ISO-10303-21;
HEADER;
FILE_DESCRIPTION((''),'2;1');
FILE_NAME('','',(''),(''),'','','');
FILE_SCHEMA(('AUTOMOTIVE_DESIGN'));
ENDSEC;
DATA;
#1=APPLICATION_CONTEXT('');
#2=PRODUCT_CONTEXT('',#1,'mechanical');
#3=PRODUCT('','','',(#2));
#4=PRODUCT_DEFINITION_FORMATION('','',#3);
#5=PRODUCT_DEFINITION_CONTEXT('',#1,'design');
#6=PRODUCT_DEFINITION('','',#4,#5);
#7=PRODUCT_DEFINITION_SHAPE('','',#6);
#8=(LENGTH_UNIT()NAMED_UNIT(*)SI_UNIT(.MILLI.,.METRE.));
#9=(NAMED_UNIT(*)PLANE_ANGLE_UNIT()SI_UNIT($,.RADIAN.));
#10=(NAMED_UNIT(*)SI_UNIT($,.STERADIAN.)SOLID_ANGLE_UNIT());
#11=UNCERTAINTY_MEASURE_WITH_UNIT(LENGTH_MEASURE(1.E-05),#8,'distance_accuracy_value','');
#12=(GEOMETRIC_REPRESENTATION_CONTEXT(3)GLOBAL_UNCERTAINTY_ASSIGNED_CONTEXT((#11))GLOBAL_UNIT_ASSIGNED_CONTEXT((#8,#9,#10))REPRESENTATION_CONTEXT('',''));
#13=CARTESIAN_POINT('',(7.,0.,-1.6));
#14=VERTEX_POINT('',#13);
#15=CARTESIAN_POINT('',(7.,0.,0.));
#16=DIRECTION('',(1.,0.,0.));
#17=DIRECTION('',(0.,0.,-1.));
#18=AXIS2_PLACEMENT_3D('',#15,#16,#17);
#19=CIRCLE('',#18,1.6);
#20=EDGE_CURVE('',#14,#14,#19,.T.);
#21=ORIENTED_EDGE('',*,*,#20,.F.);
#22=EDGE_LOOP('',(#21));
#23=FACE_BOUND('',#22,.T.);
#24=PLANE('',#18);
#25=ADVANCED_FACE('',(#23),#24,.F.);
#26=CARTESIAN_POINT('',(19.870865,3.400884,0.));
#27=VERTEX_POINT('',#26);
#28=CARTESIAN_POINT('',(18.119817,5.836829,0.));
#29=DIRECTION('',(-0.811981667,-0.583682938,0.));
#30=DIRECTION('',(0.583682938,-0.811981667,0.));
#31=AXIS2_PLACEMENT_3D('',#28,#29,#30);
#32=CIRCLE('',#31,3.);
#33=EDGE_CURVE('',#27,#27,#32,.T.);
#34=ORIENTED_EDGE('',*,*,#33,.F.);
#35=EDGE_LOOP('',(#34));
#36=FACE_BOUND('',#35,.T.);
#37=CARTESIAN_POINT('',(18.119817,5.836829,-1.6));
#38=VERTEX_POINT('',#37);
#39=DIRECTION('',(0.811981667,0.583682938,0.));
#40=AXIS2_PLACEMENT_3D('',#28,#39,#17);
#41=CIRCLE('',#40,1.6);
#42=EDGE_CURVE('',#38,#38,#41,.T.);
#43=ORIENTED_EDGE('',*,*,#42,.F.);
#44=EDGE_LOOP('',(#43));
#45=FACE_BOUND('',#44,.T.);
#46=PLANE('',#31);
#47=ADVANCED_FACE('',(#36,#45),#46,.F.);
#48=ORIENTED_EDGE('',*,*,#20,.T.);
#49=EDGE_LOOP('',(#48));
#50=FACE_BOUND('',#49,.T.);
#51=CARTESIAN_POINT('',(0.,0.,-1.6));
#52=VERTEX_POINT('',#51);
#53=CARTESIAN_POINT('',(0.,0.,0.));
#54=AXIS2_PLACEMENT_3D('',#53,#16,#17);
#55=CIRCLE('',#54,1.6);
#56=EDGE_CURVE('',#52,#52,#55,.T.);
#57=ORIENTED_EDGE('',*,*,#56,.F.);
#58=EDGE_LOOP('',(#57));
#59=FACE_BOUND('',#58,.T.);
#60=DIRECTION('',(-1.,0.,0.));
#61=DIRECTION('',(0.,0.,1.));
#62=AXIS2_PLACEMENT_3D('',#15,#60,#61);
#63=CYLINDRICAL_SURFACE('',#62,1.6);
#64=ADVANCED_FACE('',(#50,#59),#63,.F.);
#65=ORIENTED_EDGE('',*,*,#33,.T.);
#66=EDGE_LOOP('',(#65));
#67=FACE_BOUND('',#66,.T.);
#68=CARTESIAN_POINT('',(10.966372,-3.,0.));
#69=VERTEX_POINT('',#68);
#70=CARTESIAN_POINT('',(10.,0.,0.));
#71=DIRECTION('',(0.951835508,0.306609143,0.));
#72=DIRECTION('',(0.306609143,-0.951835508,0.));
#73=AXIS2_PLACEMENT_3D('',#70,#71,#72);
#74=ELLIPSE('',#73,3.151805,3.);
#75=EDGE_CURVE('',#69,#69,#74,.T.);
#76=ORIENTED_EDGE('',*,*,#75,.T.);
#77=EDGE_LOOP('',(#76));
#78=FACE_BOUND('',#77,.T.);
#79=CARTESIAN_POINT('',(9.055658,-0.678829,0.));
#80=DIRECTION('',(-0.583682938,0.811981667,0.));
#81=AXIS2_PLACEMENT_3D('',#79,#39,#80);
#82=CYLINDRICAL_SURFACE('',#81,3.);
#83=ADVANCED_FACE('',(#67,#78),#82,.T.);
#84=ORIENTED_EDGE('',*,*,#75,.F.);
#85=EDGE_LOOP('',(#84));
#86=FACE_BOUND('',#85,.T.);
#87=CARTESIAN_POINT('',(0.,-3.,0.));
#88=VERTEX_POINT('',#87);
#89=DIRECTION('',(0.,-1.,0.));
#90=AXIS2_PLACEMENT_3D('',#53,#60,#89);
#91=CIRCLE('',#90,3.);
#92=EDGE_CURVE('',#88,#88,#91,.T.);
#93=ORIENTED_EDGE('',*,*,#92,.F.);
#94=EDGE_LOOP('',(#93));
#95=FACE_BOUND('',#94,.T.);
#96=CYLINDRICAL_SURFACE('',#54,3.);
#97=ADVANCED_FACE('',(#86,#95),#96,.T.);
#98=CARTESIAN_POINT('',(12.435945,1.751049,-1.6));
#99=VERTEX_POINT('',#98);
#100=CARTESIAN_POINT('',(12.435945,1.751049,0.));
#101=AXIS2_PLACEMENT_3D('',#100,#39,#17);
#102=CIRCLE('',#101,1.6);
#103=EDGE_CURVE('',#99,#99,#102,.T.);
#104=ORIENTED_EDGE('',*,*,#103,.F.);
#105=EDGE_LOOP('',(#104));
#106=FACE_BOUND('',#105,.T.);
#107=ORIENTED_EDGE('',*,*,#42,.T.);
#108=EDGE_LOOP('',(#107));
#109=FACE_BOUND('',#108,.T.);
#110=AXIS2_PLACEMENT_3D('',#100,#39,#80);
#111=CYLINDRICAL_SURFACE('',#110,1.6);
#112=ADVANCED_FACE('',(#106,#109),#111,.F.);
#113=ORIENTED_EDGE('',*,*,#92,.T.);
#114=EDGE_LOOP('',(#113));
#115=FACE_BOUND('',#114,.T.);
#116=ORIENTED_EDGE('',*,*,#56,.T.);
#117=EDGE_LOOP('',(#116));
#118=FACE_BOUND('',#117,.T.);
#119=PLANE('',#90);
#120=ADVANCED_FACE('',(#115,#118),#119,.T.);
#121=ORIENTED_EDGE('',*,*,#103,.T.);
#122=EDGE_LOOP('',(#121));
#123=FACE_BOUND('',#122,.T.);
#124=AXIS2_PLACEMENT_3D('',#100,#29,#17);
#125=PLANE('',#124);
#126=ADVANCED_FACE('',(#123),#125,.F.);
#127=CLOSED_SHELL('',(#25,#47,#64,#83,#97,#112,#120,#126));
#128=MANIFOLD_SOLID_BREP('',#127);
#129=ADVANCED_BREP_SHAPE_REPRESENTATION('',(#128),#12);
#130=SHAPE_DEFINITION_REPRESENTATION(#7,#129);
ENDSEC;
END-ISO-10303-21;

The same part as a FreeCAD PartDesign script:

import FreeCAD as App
import Part
import Sketcher

V = App.Vector
Q = App.Units.Quantity

doc = App.newDocument("Part")
params = doc.addObject("Spreadsheet::Sheet", "Params")
for row, (alias, value) in enumerate([
    ("sketch1_diameter", "6 mm"),
    ("sketch2_width", "10 mm"),
    ("sketch2_length", "10 mm"),
    ("sketch3_diameter", "3.2 mm"),
    ("pocket1_length", "7 mm"),
], start=1):
    params.set(f"A{row}", alias)
    params.set(f"B{row}", "=" + value)
    params.setAlias(f"B{row}", alias)

body = doc.addObject("PartDesign::Body", "Body")

sketch1 = body.newObject("Sketcher::SketchObject", "Sketch")
sketch1.AttachmentSupport = (doc.getObject("YZ_Plane"), [""])
sketch1.MapMode = "FlatFace"
sketch1.addGeometry(Part.Circle(V(0, 0, 0), V(0, 0, 1), 3), False)
sketch1.addConstraint([
    Sketcher.Constraint("Coincident", 0, 3, -1, 1),
    Sketcher.Constraint("Diameter", 0, 6.0),
])
sketch1.setExpression("Constraints[1]", "Params.sketch1_diameter")

sketch2 = body.newObject("Sketcher::SketchObject", "Sketch001")
sketch2.AttachmentSupport = (doc.getObject("XY_Plane"), [""])
sketch2.MapMode = "FlatFace"
sketch2.addGeometry([
    Part.LineSegment(V(0, 0, 0), V(10, 0, 0)),
    Part.LineSegment(V(10, 0, 0), V(18, 6, 0)),
], False)
sketch2.addConstraint([
    Sketcher.Constraint("Coincident", 0, 2, 1, 1),
    Sketcher.Constraint("Horizontal", 0),
    Sketcher.Constraint("Coincident", 0, 1, -1, 1),
    Sketcher.Constraint("DistanceX", 0, 1, 0, 2, 10.0),
    Sketcher.Constraint("Distance", 1, 10.0),
    Sketcher.Constraint("Angle", 1, Q("35.71 deg")),
])
sketch2.setExpression("Constraints[3]", "Params.sketch2_width")
sketch2.setExpression("Constraints[4]", "Params.sketch2_length")
doc.recompute()

additivepipe = body.newObject("PartDesign::AdditivePipe", "AdditivePipe")
additivepipe.Profile = sketch1
additivepipe.Spine = (sketch2, ["Edge1", "Edge2"])
additivepipe.Transition = "Right corner"

sketch3 = body.newObject("Sketcher::SketchObject", "Sketch002")
sketch3.AttachmentSupport = (doc.getObject("YZ_Plane"), [""])
sketch3.MapMode = "FlatFace"
sketch3.addGeometry(Part.Circle(V(0, 0, 0), V(0, 0, 1), 1.6), False)
sketch3.addConstraint([
    Sketcher.Constraint("Coincident", 0, 3, -1, 1),
    Sketcher.Constraint("Diameter", 0, 3.2),
])
sketch3.setExpression("Constraints[1]", "Params.sketch3_diameter")
pocket1 = body.newObject("PartDesign::Pocket", "Pocket")
pocket1.Profile = sketch3
pocket1.setExpression("Length", "Params.pocket1_length")
pocket1.Reversed = True
doc.recompute()

datumplane = body.newObject("PartDesign::Plane", "DatumPlane")
datumplane.Placement = App.Placement(V(9.059908, 2.918415, 0), App.Rotation(V(0.306609143, -0.951835508, 0), V(0, 0, -1), V(0.951835508, 0.306609143, 0), "ZXY"))
mirrored = body.newObject("PartDesign::Mirrored", "Mirrored")
mirrored.Originals = [pocket1]
mirrored.MirrorPlane = (datumplane, [""])
body.Tip = mirrored

doc.recompute()
